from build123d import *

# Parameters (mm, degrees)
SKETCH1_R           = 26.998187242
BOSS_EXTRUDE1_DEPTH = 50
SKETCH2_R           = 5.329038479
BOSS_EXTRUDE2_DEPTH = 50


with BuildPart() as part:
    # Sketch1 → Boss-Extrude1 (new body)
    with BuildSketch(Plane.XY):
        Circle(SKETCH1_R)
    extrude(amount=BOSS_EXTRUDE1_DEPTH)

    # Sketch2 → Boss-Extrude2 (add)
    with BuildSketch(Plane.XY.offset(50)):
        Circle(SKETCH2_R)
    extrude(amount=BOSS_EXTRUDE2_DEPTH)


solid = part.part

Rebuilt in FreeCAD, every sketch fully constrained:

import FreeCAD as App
import Part
import Sketcher
from FreeCAD import Vector

doc = App.newDocument("Part")
body = doc.addObject("PartDesign::Body", "Body")

sketch1 = body.newObject("Sketcher::SketchObject", "Sketch")
sketch1.AttachmentSupport = (doc.getObject("XY_Plane"), [""])
sketch1.MapMode = "FlatFace"
sketch1.addGeometry(Part.Circle(Vector(0, 0, 0), Vector(0, 0, 1), 27), False)
sketch1.addConstraint([
    Sketcher.Constraint("Coincident", 0, 3, -1, 1),
    Sketcher.Constraint("Diameter", 0, 53.996374),
])
pad1 = body.newObject("PartDesign::Pad", "Pad")
pad1.Profile = sketch1
pad1.Length = 50

sketch2 = body.newObject("Sketcher::SketchObject", "Sketch001")
sketch2.AttachmentSupport = (doc.getObject("XY_Plane"), [""])
sketch2.MapMode = "FlatFace"
sketch2.AttachmentOffset = App.Placement(Vector(0, 0, 50), App.Rotation())
sketch2.addGeometry(Part.Circle(Vector(0, 0, 0), Vector(0, 0, 1), 5), False)
sketch2.addConstraint([
    Sketcher.Constraint("Coincident", 0, 3, -1, 1),
    Sketcher.Constraint("Diameter", 0, 10.658077),
])
pad2 = body.newObject("PartDesign::Pad", "Pad001")
pad2.Profile = sketch2
pad2.Length = 50

doc.recompute()
